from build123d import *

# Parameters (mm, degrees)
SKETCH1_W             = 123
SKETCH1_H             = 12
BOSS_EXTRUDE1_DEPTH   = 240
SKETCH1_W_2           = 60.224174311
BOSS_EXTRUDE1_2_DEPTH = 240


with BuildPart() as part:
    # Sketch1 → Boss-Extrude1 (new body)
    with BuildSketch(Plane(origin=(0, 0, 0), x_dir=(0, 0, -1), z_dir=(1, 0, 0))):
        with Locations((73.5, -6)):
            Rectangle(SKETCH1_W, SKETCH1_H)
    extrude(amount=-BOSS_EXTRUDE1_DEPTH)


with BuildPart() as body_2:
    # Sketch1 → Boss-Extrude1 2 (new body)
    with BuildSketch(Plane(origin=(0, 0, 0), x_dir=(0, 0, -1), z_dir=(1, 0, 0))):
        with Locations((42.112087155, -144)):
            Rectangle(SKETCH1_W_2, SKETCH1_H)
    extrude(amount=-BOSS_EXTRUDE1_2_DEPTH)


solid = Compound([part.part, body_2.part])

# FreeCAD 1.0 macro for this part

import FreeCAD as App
import Part
import Sketcher

V = App.Vector

doc = App.newDocument("Part")
body = doc.addObject("PartDesign::Body", "Body")

# Sketch on YZ plane
sketch1 = body.newObject("Sketcher::SketchObject", "Sketch")
sketch1.AttachmentSupport = (doc.getObject("YZ_Plane"), [""])
sketch1.MapMode = "FlatFace"
sketch1.addGeometry(Part.LineSegment(V(0, -12, 0), V(-12, -12, 0)), False)
sketch1.addGeometry(Part.LineSegment(V(-12, -12, 0), V(-12, -135, 0)), False)
sketch1.addGeometry(Part.LineSegment(V(-12, -135, 0), V(0, -135, 0)), False)
sketch1.addGeometry(Part.LineSegment(V(0, -135, 0), V(0, -12, 0)), False)
sketch1.addConstraint(Sketcher.Constraint("Coincident", 0, 2, 1, 1))
sketch1.addConstraint(Sketcher.Constraint("Coincident", 1, 2, 2, 1))
sketch1.addConstraint(Sketcher.Constraint("Coincident", 2, 2, 3, 1))
sketch1.addConstraint(Sketcher.Constraint("Coincident", 3, 2, 0, 1))
sketch1.addConstraint(Sketcher.Constraint("Horizontal", 0))
sketch1.addConstraint(Sketcher.Constraint("Vertical", 1))
sketch1.addConstraint(Sketcher.Constraint("Horizontal", 2))
sketch1.addConstraint(Sketcher.Constraint("Vertical", 3))
sketch1.addConstraint(Sketcher.Constraint("PointOnObject", 2, 2, -2))
sketch1.addConstraint(Sketcher.Constraint("DistanceX", 0, 2, 0, 1, 12.0))
sketch1.addConstraint(Sketcher.Constraint("DistanceY", 1, 2, 1, 1, 123.0))
sketch1.addConstraint(Sketcher.Constraint("DistanceY", 0, 2, -1, 1, 12.0))
pad1 = body.newObject("PartDesign::Pad", "Pad")
pad1.Profile = sketch1
pad1.Length = 240
pad1.Reversed = True
body2 = doc.addObject("PartDesign::Body", "Body001")

# Sketch on YZ plane
sketch2 = body2.newObject("Sketcher::SketchObject", "Sketch001")
sketch2.AttachmentSupport = (doc.getObject("YZ_Plane001"), [""])
sketch2.MapMode = "FlatFace"
sketch2.addGeometry(Part.LineSegment(V(-138, -12, 0), V(-150, -12, 0)), False)
sketch2.addGeometry(Part.LineSegment(V(-150, -12, 0), V(-150, -72, 0)), False)
sketch2.addGeometry(Part.LineSegment(V(-150, -72, 0), V(-138, -72, 0)), False)
sketch2.addGeometry(Part.LineSegment(V(-138, -72, 0), V(-138, -12, 0)), False)
sketch2.addConstraint(Sketcher.Constraint("Coincident", 0, 2, 1, 1))
sketch2.addConstraint(Sketcher.Constraint("Coincident", 1, 2, 2, 1))
sketch2.addConstraint(Sketcher.Constraint("Coincident", 2, 2, 3, 1))
sketch2.addConstraint(Sketcher.Constraint("Coincident", 3, 2, 0, 1))
sketch2.addConstraint(Sketcher.Constraint("Horizontal", 0))
sketch2.addConstraint(Sketcher.Constraint("Vertical", 1))
sketch2.addConstraint(Sketcher.Constraint("Horizontal", 2))
sketch2.addConstraint(Sketcher.Constraint("Vertical", 3))
sketch2.addConstraint(Sketcher.Constraint("DistanceX", 0, 2, 0, 1, 12.0))
sketch2.addConstraint(Sketcher.Constraint("DistanceX", 0, 2, -1, 1, 150.0))
sketch2.addConstraint(Sketcher.Constraint("DistanceY", 0, 2, -1, 1, 12.0))
sketch2.addConstraint(Sketcher.Constraint("DistanceY", 1, 2, 1, 1, 60.224174))
pad2 = body2.newObject("PartDesign::Pad", "Pad001")
pad2.Profile = sketch2
pad2.Length = 240
pad2.Reversed = True

doc.recompute()
